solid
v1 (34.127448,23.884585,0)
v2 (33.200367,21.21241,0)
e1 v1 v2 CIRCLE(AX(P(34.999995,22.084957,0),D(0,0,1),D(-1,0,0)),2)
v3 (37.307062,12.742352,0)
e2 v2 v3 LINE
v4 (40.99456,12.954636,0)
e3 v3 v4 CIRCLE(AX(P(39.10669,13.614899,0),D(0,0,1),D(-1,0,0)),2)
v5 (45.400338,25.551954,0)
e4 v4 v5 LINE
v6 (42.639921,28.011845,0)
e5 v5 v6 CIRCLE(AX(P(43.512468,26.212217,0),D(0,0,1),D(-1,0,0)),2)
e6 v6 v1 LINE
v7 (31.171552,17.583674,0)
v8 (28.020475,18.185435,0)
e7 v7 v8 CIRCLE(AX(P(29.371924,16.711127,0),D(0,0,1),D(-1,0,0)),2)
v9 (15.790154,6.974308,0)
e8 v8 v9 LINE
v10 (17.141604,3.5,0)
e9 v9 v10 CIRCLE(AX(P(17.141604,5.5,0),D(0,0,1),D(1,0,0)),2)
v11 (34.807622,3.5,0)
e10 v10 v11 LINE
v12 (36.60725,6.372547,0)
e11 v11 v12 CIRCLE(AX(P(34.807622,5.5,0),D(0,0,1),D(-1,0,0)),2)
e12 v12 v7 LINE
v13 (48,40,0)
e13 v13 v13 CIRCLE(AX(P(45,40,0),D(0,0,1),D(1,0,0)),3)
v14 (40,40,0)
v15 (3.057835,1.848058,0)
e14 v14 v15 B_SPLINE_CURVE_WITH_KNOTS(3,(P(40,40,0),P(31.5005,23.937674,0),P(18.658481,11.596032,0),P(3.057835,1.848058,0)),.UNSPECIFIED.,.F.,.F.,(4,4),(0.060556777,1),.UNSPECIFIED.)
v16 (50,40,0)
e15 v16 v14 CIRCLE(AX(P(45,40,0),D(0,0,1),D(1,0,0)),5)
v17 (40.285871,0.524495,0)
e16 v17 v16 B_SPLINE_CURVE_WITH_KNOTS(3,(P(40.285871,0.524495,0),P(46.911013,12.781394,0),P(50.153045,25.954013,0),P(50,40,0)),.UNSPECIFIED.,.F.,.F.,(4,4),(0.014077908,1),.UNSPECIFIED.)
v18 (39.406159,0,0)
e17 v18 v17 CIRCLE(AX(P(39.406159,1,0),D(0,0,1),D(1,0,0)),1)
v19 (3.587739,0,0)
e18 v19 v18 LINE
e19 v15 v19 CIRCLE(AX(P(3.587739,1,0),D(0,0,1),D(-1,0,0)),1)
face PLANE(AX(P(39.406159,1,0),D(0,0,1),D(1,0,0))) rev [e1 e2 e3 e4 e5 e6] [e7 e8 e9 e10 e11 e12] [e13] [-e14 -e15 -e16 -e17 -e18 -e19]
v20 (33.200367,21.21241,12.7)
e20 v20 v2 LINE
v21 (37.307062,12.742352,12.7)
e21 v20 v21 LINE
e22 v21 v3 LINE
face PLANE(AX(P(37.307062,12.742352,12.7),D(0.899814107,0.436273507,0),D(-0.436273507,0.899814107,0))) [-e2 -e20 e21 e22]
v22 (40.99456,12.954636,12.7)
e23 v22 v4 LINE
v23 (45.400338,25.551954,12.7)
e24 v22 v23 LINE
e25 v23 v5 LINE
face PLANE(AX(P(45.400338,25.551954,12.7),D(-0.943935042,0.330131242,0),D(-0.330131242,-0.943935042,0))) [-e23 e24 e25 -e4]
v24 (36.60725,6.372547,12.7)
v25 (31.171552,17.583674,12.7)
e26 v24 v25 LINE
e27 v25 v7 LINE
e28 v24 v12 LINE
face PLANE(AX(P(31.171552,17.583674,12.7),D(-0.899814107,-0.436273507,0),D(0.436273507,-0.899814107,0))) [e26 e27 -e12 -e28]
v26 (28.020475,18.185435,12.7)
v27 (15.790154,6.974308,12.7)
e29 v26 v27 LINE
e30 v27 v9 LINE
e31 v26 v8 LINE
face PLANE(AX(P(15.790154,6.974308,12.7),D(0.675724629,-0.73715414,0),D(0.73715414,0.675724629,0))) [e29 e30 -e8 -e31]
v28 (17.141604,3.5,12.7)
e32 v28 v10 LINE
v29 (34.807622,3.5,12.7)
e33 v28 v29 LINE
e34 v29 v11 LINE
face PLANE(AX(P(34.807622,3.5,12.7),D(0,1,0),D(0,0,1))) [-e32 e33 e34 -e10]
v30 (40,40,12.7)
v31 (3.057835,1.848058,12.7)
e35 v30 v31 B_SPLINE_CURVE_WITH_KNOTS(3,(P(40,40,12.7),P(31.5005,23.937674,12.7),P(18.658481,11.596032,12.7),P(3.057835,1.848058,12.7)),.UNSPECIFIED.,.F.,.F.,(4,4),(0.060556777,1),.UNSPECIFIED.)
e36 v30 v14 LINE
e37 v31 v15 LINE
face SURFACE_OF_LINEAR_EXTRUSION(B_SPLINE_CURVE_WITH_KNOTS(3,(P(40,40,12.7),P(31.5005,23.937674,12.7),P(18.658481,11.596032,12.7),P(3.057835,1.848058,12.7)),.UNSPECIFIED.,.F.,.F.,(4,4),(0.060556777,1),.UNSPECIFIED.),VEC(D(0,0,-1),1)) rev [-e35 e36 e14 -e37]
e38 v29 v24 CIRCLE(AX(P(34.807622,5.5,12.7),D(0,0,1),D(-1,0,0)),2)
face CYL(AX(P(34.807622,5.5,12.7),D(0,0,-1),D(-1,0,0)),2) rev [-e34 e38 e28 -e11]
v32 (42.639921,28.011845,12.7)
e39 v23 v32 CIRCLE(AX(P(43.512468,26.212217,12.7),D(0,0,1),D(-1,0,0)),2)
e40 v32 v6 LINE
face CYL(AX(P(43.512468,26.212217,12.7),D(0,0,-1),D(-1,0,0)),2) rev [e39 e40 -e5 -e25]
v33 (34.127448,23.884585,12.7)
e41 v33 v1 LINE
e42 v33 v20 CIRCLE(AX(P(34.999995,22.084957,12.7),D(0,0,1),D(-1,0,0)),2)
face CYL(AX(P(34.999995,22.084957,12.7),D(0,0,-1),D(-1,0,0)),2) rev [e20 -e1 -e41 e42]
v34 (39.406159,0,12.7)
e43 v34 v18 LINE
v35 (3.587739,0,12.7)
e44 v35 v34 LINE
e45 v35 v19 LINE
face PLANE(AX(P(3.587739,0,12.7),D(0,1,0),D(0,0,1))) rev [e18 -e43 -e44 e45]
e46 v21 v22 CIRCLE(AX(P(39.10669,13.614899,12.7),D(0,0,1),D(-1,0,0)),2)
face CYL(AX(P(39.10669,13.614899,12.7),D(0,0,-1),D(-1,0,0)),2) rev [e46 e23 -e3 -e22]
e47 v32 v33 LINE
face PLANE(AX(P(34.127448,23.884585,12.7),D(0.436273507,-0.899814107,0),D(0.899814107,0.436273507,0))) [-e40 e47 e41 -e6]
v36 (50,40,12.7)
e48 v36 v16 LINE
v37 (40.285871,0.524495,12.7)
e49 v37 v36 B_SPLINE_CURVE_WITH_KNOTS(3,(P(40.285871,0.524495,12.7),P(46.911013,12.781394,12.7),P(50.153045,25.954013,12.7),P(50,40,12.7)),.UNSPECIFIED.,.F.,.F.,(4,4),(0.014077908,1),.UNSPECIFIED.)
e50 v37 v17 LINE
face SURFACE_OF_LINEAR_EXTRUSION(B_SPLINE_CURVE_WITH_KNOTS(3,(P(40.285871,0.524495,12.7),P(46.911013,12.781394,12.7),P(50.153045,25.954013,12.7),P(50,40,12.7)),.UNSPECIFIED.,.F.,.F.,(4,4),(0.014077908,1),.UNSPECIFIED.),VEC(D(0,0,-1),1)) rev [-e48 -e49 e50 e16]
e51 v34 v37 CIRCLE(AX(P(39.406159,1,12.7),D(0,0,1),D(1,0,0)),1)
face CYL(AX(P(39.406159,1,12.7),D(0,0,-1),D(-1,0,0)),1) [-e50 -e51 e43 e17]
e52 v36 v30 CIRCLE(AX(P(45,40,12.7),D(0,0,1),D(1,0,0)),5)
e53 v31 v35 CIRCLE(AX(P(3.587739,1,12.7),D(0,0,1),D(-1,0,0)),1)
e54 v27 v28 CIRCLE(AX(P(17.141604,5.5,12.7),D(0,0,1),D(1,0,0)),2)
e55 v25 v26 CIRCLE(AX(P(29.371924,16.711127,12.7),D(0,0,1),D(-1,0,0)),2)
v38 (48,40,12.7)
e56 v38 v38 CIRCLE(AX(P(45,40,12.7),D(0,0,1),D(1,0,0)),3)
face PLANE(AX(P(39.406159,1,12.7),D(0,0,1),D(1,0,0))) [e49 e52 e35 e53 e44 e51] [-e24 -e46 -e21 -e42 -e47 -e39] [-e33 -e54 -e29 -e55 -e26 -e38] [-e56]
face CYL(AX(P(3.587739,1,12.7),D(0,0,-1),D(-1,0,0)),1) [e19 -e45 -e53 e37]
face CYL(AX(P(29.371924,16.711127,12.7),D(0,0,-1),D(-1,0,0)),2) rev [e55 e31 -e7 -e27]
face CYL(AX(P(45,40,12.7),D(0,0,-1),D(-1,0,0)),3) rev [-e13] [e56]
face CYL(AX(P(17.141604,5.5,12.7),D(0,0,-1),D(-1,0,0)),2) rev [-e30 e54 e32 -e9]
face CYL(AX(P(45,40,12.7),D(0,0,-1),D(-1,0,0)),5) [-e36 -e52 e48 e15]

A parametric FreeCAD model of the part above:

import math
import FreeCAD as App
import Part
import Sketcher

V = App.Vector
Q = App.Units.Quantity

doc = App.newDocument("Part")
body = doc.addObject("PartDesign::Body", "Body")

# Sketch on XY plane
sketch1 = doc.addObject("Sketcher::SketchObject", "Sketch")
body.addObject(sketch1)
sketch1.AttachmentSupport = (doc.XY_Plane, [""])
sketch1.MapMode = "FlatFace"
sketch1.addGeometry([
    Part.LineSegment(V(3.587739, 0, 0), V(39.406159, 0, 0)),  # 0
    Part.ArcOfCircle(Part.Circle(V(39.406159, 1, 0), V(0, 0, 1), 1), math.radians(-90), math.radians(-28.392264)),  # 1
    Part.BSplineCurve([V(40.285871, 0.524495, 0), V(46.911013, 12.781394, 0), V(50.153045, 25.954013, 0), V(50, 40, 0)], [4, 4], [0.014077908, 1], False, 3, [1, 1, 1, 1], False),  # 2
    Part.ArcOfCircle(Part.Circle(V(45, 40, 0), V(0, 0, 1), 5), math.radians(0), math.radians(180)),  # 3
    Part.BSplineCurve([V(3.057835, 1.848058, 0), V(18.658481, 11.596032, 0), V(31.5005, 23.937674, 0), V(40, 40, 0)], [4, 4], [0.060556777, 1], False, 3, [1, 1, 1, 1], False),  # 4
    Part.ArcOfCircle(Part.Circle(V(3.587739, 1, 0), V(0, 0, 1), 1), math.radians(121.998967), math.radians(270)),  # 5
    Part.ArcOfCircle(Part.Circle(V(17.141604, 5.5, 0), V(0, 0, 1), 2), math.radians(132.510447), math.radians(270)),  # 6
    Part.LineSegment(V(15.790154, 6.974308, 0), V(28.020475, 18.185435, 0)),  # 7
    Part.ArcOfCircle(Part.Circle(V(29.371924, 16.711127, 0), V(0, 0, 1), 2), math.radians(25.866357), math.radians(132.510447)),  # 8
    Part.LineSegment(V(31.171552, 17.583674, 0), V(36.60725, 6.372547, 0)),  # 9
    Part.ArcOfCircle(Part.Circle(V(34.807622, 5.5, 0), V(0, 0, 1), 2), math.radians(-90), math.radians(25.866357)),  # 10
    Part.LineSegment(V(34.807622, 3.5, 0), V(17.141604, 3.5, 0)),  # 11
    Part.ArcOfCircle(Part.Circle(V(39.10669, 13.614899, 0), V(0, 0, 1), 2), math.radians(-154.133643), math.radians(-19.276742)),  # 12
    Part.LineSegment(V(37.307062, 12.742352, 0), V(33.200367, 21.21241, 0)),  # 13
    Part.ArcOfCircle(Part.Circle(V(34.999995, 22.084957, 0), V(0, 0, 1), 2), math.radians(115.866357), math.radians(205.866357)),  # 14
    Part.LineSegment(V(34.127448, 23.884585, 0), V(42.639921, 28.011845, 0)),  # 15
    Part.ArcOfCircle(Part.Circle(V(43.512468, 26.212217, 0), V(0, 0, 1), 2), math.radians(-19.276742), math.radians(115.866357)),  # 16
    Part.LineSegment(V(45.400338, 25.551954, 0), V(40.99456, 12.954636, 0)),  # 17
    Part.Circle(V(45, 40, 0), V(0, 0, 1), 3),  # 18
], False)
sketch1.addConstraint([
    Sketcher.Constraint("Block", 2),
    Sketcher.Constraint("Block", 4),
    Sketcher.Constraint("Coincident", 0, 2, 1, 1),
    Sketcher.Constraint("Coincident", 1, 2, 2, 1),
    Sketcher.Constraint("Coincident", 2, 2, 3, 1),
    Sketcher.Constraint("Coincident", 3, 2, 4, 2),
    Sketcher.Constraint("Coincident", 4, 1, 5, 1),
    Sketcher.Constraint("Coincident", 5, 2, 0, 1),
    Sketcher.Constraint("Coincident", 6, 1, 7, 1),
    Sketcher.Constraint("Coincident", 7, 2, 8, 2),
    Sketcher.Constraint("Coincident", 8, 1, 9, 1),
    Sketcher.Constraint("Coincident", 9, 2, 10, 2),
    Sketcher.Constraint("Coincident", 10, 1, 11, 1),
    Sketcher.Constraint("Coincident", 11, 2, 6, 2),
    Sketcher.Constraint("Coincident", 12, 1, 13, 1),
    Sketcher.Constraint("Coincident", 13, 2, 14, 2),
    Sketcher.Constraint("Coincident", 14, 1, 15, 1),
    Sketcher.Constraint("Coincident", 15, 2, 16, 2),
    Sketcher.Constraint("Coincident", 16, 1, 17, 1),
    Sketcher.Constraint("Coincident", 17, 2, 12, 2),
    Sketcher.Constraint("Horizontal", 0),
    Sketcher.Constraint("Horizontal", 11),
    Sketcher.Constraint("Coincident", 18, 3, 3, 3),
    Sketcher.Constraint("PointOnObject", 0, 2, -1),
    Sketcher.Constraint("Diameter", 18, Q("6 mm")),
    Sketcher.Constraint("Radius", 1, Q("1 mm")),
    Sketcher.Constraint("Radius", 5, Q("1 mm")),
    Sketcher.Constraint("Radius", 6, Q("2 mm")),
    Sketcher.Constraint("Radius", 8, Q("2 mm")),
    Sketcher.Constraint("Radius", 10, Q("2 mm")),
    Sketcher.Constraint("Radius", 12, Q("2 mm")),
    Sketcher.Constraint("Radius", 14, Q("2 mm")),
    Sketcher.Constraint("Radius", 16, Q("2 mm")),
    Sketcher.Constraint("DistanceY", -1, 1, 3, 3, Q("40 mm")),
    Sketcher.Constraint("DistanceY", -1, 1, 6, 3, Q("5.5 mm")),
    Sketcher.Constraint("DistanceX", 0, 1, 0, 2, Q("35.81842 mm")),
    Sketcher.Constraint("DistanceY", -1, 1, 12, 3, Q("13.614899 mm")),
    Sketcher.Constraint("DistanceX", 12, 1, 17, 2, Q("3.687498 mm")),
    Sketcher.Constraint("Distance", 9, Q("12.459381 mm")),
    Sketcher.Constraint("Distance", 13, Q("9.41312 mm")),
    Sketcher.Constraint("DistanceX", 11, 2, 11, 1, Q("17.666018 mm")),
    Sketcher.Constraint("DistanceX", -1, 1, 10, 3, Q("34.807622 mm")),
    Sketcher.Constraint("DistanceX", -1, 1, 12, 3, Q("39.10669 mm")),
    Sketcher.Constraint("DistanceX", -1, 1, 16, 3, Q("43.512468 mm")),
    Sketcher.Constraint("DistanceX", -1, 1, 0, 2, Q("39.406159 mm")),
    Sketcher.Constraint("DistanceY", -1, 1, 6, 1, Q("6.974308 mm")),
    Sketcher.Constraint("DistanceX", -1, 1, 9, 2, Q("36.60725 mm")),
    Sketcher.Constraint("DistanceX", -1, 1, 10, 1, Q("34.807622 mm")),
    Sketcher.Constraint("DistanceX", -1, 1, 12, 1, Q("37.307062 mm")),
    Sketcher.Constraint("DistanceY", -1, 1, 13, 2, Q("21.21241 mm")),
    Sketcher.Constraint("DistanceX", -1, 1, 15, 2, Q("42.639921 mm")),
    Sketcher.Constraint("DistanceX", -1, 1, 16, 1, Q("45.400338 mm")),
    Sketcher.Constraint("DistanceX", 6, 3, 8, 3, Q("12.23032 mm")),
    Sketcher.Constraint("DistanceY", 12, 3, 8, 3, Q("3.096228 mm")),
    Sketcher.Constraint("DistanceX", 8, 3, 14, 3, Q("5.628071 mm")),
    Sketcher.Constraint("DistanceY", 8, 3, 14, 3, Q("5.37383 mm")),
    Sketcher.Constraint("DistanceY", 14, 3, 16, 3, Q("4.12726 mm")),
    Sketcher.Constraint("DistanceX", 7, 2, 8, 3, Q("1.351449 mm")),
    Sketcher.Constraint("DistanceY", 14, 3, 14, 1, Q("1.799628 mm")),
])
pad1 = doc.addObject("PartDesign::Pad", "Pad")
body.addObject(pad1)
pad1.Profile = sketch1
pad1.Length = 12.7

doc.recompute()
